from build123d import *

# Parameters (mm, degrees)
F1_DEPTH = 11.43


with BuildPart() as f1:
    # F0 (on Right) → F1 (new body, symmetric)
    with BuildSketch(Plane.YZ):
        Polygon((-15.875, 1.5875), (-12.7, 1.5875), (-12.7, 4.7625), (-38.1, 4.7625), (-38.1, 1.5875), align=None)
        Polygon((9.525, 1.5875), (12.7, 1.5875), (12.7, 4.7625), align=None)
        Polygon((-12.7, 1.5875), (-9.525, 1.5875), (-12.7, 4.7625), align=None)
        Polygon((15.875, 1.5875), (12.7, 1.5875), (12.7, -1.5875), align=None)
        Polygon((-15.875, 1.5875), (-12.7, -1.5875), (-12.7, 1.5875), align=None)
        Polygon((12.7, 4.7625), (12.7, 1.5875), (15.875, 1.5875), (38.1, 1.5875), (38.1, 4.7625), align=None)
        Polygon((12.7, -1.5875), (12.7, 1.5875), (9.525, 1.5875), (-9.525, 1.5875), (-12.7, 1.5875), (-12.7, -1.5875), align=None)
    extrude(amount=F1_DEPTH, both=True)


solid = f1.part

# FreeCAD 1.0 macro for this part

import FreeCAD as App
import Part
import Sketcher

V = App.Vector
Q = App.Units.Quantity


def add_polygon(sketch, points):
    """Adds a closed chain of lines whose ends are joined by coincident constraints."""
    first, n = sketch.GeometryCount, len(points)
    for a, b in zip(points, points[1:] + points[:1]):
        sketch.addGeometry(Part.LineSegment(App.Vector(*a, 0), App.Vector(*b, 0)), False)
    for i in range(n):
        sketch.addConstraint(Sketcher.Constraint("Coincident", first + i, 2, first + (i + 1) % n, 1))

doc = App.newDocument("Part")
body = doc.addObject("PartDesign::Body", "Body")

# Sketch on YZ plane
sketch1 = doc.addObject("Sketcher::SketchObject", "Sketch")
body.addObject(sketch1)
sketch1.AttachmentSupport = (doc.YZ_Plane, [""])
sketch1.MapMode = "FlatFace"
add_polygon(sketch1, [(-12.7, 4.8), (-38.1, 4.8), (-38.1, 1.6), (-15.9, 1.6), (-12.7, -1.6), (12.7, -1.6), (15.9, 1.6), (38.1, 1.6), (38.1, 4.8), (12.7, 4.8), (9.5, 1.6), (-9.5, 1.6)])  # lines 0-11
sketch1.addConstraint(Sketcher.Constraint("Horizontal", 0))
sketch1.addConstraint(Sketcher.Constraint("Vertical", 1))
sketch1.addConstraint(Sketcher.Constraint("Horizontal", 2))
sketch1.addConstraint(Sketcher.Constraint("Horizontal", 4))
sketch1.addConstraint(Sketcher.Constraint("Horizontal", 6))
sketch1.addConstraint(Sketcher.Constraint("Vertical", 7))
sketch1.addConstraint(Sketcher.Constraint("Horizontal", 8))
sketch1.addConstraint(Sketcher.Constraint("Horizontal", 10))
sketch1.addConstraint(Sketcher.Constraint("Symmetric", 2, 2, 5, 2, -2))
sketch1.addConstraint(Sketcher.Constraint("Symmetric", 0, 2, 7, 2, -2))
sketch1.addConstraint(Sketcher.Constraint("Perpendicular", 3, 5))
sketch1.addConstraint(Sketcher.Constraint("Parallel", 5, 9))
sketch1.addConstraint(Sketcher.Constraint("Perpendicular", 9, 11))
sketch1.addConstraint(Sketcher.Constraint("Horizontal", 6, 2, 9, 2))
sketch1.addConstraint(Sketcher.Constraint("Vertical", 4, 2, 8, 2))
sketch1.addConstraint(Sketcher.Constraint("Vertical", 3, 2, 11, 2))
sketch1.addConstraint(Sketcher.Constraint("Equal", 0, 4))
sketch1.addConstraint(Sketcher.Constraint("Equal", 4, 8))
sketch1.addConstraint(Sketcher.Constraint("Equal", 5, 9))
sketch1.addConstraint(Sketcher.Constraint("DistanceX", 0, 2, 0, 1, Q("1 in")))
sketch1.addConstraint(Sketcher.Constraint("DistanceX", 10, 2, 10, 1, Q("0.75 in")))
sketch1.addConstraint(Sketcher.Constraint("DistanceY", -1, 1, 0, 2, Q("0.1875 in")))
pad1 = doc.addObject("PartDesign::Pad", "Pad")
body.addObject(pad1)
pad1.Profile = sketch1
pad1.Length = Q("0.9 in")
pad1.Midplane = True

doc.recompute()
